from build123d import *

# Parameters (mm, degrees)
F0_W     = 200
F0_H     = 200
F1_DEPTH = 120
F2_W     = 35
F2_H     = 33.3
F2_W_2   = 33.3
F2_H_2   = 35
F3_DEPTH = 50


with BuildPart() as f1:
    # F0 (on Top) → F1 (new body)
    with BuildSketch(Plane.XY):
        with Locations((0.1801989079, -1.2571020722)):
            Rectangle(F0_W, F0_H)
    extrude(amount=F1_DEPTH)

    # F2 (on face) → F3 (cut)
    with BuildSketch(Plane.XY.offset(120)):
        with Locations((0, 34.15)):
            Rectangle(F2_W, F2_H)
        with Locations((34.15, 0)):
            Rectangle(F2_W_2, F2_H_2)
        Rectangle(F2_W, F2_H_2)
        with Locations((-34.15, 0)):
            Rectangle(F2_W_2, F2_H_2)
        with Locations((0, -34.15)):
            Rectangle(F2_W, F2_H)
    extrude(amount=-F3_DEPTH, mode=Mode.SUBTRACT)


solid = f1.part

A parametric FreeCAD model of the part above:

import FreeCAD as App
import Part
import Sketcher
from FreeCAD import Vector
Q = App.Units.Quantity

doc = App.newDocument("Part")
body = doc.addObject("PartDesign::Body", "Body")

# Sketch on XY plane
sketch1 = body.newObject("Sketcher::SketchObject", "Sketch")
sketch1.AttachmentSupport = (doc.getObject("XY_Plane"), [""])
sketch1.MapMode = "FlatFace"
sketch1.addGeometry(Part.LineSegment(Vector(-99.819801, 98.742898, 0), Vector(-99.819801, -101.257102, 0)), False)
sketch1.addGeometry(Part.LineSegment(Vector(-99.819801, -101.257102, 0), Vector(100.180199, -101.257102, 0)), False)
sketch1.addGeometry(Part.LineSegment(Vector(100.180199, -101.257102, 0), Vector(100.180199, 98.742898, 0)), False)
sketch1.addGeometry(Part.LineSegment(Vector(100.180199, 98.742898, 0), Vector(-99.819801, 98.742898, 0)), False)
sketch1.addConstraint(Sketcher.Constraint("Coincident", 0, 2, 1, 1))
sketch1.addConstraint(Sketcher.Constraint("Coincident", 1, 2, 2, 1))
sketch1.addConstraint(Sketcher.Constraint("Coincident", 2, 2, 3, 1))
sketch1.addConstraint(Sketcher.Constraint("Coincident", 3, 2, 0, 1))
sketch1.addConstraint(Sketcher.Constraint("Vertical", 0))
sketch1.addConstraint(Sketcher.Constraint("Horizontal", 1))
sketch1.addConstraint(Sketcher.Constraint("Vertical", 2))
sketch1.addConstraint(Sketcher.Constraint("Horizontal", 3))
sketch1.addConstraint(Sketcher.Constraint("Equal", 3, 0))
sketch1.addConstraint(Sketcher.Constraint("DistanceX", 1, 1, 1, 2, Q("200 mm")))
sketch1.addConstraint(Sketcher.Constraint("DistanceX", 0, 2, -1, 1, Q("99.819801 mm")))
sketch1.addConstraint(Sketcher.Constraint("DistanceY", 0, 2, -1, 1, Q("101.257102 mm")))
pad1 = body.newObject("PartDesign::Pad", "Pad")
pad1.Profile = sketch1
pad1.Length = 120

# Sketch on XY plane
sketch2 = body.newObject("Sketcher::SketchObject", "Sketch001")
sketch2.AttachmentSupport = (doc.getObject("XY_Plane"), [""])
sketch2.MapMode = "FlatFace"
sketch2.AttachmentOffset = App.Placement(Vector(0, 0, 120), App.Rotation())
sketch2.addGeometry(Part.LineSegment(Vector(-17.5, 50.8, 0), Vector(-17.5, 17.5, 0)), False)
sketch2.addGeometry(Part.LineSegment(Vector(-17.5, 17.5, 0), Vector(-50.8, 17.5, 0)), False)
sketch2.addGeometry(Part.LineSegment(Vector(-50.8, 17.5, 0), Vector(-50.8, -17.5, 0)), False)
sketch2.addGeometry(Part.LineSegment(Vector(-50.8, -17.5, 0), Vector(-17.5, -17.5, 0)), False)
sketch2.addGeometry(Part.LineSegment(Vector(-17.5, -17.5, 0), Vector(-17.5, -50.8, 0)), False)
sketch2.addGeometry(Part.LineSegment(Vector(-17.5, -50.8, 0), Vector(17.5, -50.8, 0)), False)
sketch2.addGeometry(Part.LineSegment(Vector(17.5, -50.8, 0), Vector(17.5, -17.5, 0)), False)
sketch2.addGeometry(Part.LineSegment(Vector(17.5, -17.5, 0), Vector(50.8, -17.5, 0)), False)
sketch2.addGeometry(Part.LineSegment(Vector(50.8, -17.5, 0), Vector(50.8, 17.5, 0)), False)
sketch2.addGeometry(Part.LineSegment(Vector(50.8, 17.5, 0), Vector(17.5, 17.5, 0)), False)
sketch2.addGeometry(Part.LineSegment(Vector(17.5, 17.5, 0), Vector(17.5, 50.8, 0)), False)
sketch2.addGeometry(Part.LineSegment(Vector(17.5, 50.8, 0), Vector(-17.5, 50.8, 0)), False)
sketch2.addConstraint(Sketcher.Constraint("Coincident", 0, 2, 1, 1))
sketch2.addConstraint(Sketcher.Constraint("Coincident", 1, 2, 2, 1))
sketch2.addConstraint(Sketcher.Constraint("Coincident", 2, 2, 3, 1))
sketch2.addConstraint(Sketcher.Constraint("Coincident", 3, 2, 4, 1))
sketch2.addConstraint(Sketcher.Constraint("Coincident", 4, 2, 5, 1))
sketch2.addConstraint(Sketcher.Constraint("Coincident", 5, 2, 6, 1))
sketch2.addConstraint(Sketcher.Constraint("Coincident", 6, 2, 7, 1))
sketch2.addConstraint(Sketcher.Constraint("Coincident", 7, 2, 8, 1))
sketch2.addConstraint(Sketcher.Constraint("Coincident", 8, 2, 9, 1))
sketch2.addConstraint(Sketcher.Constraint("Coincident", 9, 2, 10, 1))
sketch2.addConstraint(Sketcher.Constraint("Coincident", 10, 2, 11, 1))
sketch2.addConstraint(Sketcher.Constraint("Coincident", 11, 2, 0, 1))
sketch2.addConstraint(Sketcher.Constraint("Vertical", 0))
sketch2.addConstraint(Sketcher.Constraint("Horizontal", 1))
sketch2.addConstraint(Sketcher.Constraint("Vertical", 2))
sketch2.addConstraint(Sketcher.Constraint("Horizontal", 3))
sketch2.addConstraint(Sketcher.Constraint("Vertical", 4))
sketch2.addConstraint(Sketcher.Constraint("Horizontal", 5))
sketch2.addConstraint(Sketcher.Constraint("Vertical", 6))
sketch2.addConstraint(Sketcher.Constraint("Horizontal", 7))
sketch2.addConstraint(Sketcher.Constraint("Vertical", 8))
sketch2.addConstraint(Sketcher.Constraint("Horizontal", 9))
sketch2.addConstraint(Sketcher.Constraint("Vertical", 10))
sketch2.addConstraint(Sketcher.Constraint("Horizontal", 11))
sketch2.addConstraint(Sketcher.Constraint("Symmetric", 0, 2, 6, 2, -1, 1))
sketch2.addConstraint(Sketcher.Constraint("Symmetric", 2, 2, 8, 2, -1, 1))
sketch2.addConstraint(Sketcher.Constraint("Symmetric", 4, 2, 10, 2, -1, 1))
sketch2.addConstraint(Sketcher.Constraint("Symmetric", 3, 2, 6, 2, -2))
sketch2.addConstraint(Sketcher.Constraint("Equal", 9, 0))
sketch2.addConstraint(Sketcher.Constraint("Equal", 11, 2))
sketch2.addConstraint(Sketcher.Constraint("DistanceX", 5, 1, 5, 2, Q("35 mm")))
sketch2.addConstraint(Sketcher.Constraint("DistanceX", 1, 2, 1, 1, Q("33.3 mm")))
pocket1 = body.newObject("PartDesign::Pocket", "Pocket")
pocket1.Profile = sketch2
pocket1.Length = 50

doc.recompute()
